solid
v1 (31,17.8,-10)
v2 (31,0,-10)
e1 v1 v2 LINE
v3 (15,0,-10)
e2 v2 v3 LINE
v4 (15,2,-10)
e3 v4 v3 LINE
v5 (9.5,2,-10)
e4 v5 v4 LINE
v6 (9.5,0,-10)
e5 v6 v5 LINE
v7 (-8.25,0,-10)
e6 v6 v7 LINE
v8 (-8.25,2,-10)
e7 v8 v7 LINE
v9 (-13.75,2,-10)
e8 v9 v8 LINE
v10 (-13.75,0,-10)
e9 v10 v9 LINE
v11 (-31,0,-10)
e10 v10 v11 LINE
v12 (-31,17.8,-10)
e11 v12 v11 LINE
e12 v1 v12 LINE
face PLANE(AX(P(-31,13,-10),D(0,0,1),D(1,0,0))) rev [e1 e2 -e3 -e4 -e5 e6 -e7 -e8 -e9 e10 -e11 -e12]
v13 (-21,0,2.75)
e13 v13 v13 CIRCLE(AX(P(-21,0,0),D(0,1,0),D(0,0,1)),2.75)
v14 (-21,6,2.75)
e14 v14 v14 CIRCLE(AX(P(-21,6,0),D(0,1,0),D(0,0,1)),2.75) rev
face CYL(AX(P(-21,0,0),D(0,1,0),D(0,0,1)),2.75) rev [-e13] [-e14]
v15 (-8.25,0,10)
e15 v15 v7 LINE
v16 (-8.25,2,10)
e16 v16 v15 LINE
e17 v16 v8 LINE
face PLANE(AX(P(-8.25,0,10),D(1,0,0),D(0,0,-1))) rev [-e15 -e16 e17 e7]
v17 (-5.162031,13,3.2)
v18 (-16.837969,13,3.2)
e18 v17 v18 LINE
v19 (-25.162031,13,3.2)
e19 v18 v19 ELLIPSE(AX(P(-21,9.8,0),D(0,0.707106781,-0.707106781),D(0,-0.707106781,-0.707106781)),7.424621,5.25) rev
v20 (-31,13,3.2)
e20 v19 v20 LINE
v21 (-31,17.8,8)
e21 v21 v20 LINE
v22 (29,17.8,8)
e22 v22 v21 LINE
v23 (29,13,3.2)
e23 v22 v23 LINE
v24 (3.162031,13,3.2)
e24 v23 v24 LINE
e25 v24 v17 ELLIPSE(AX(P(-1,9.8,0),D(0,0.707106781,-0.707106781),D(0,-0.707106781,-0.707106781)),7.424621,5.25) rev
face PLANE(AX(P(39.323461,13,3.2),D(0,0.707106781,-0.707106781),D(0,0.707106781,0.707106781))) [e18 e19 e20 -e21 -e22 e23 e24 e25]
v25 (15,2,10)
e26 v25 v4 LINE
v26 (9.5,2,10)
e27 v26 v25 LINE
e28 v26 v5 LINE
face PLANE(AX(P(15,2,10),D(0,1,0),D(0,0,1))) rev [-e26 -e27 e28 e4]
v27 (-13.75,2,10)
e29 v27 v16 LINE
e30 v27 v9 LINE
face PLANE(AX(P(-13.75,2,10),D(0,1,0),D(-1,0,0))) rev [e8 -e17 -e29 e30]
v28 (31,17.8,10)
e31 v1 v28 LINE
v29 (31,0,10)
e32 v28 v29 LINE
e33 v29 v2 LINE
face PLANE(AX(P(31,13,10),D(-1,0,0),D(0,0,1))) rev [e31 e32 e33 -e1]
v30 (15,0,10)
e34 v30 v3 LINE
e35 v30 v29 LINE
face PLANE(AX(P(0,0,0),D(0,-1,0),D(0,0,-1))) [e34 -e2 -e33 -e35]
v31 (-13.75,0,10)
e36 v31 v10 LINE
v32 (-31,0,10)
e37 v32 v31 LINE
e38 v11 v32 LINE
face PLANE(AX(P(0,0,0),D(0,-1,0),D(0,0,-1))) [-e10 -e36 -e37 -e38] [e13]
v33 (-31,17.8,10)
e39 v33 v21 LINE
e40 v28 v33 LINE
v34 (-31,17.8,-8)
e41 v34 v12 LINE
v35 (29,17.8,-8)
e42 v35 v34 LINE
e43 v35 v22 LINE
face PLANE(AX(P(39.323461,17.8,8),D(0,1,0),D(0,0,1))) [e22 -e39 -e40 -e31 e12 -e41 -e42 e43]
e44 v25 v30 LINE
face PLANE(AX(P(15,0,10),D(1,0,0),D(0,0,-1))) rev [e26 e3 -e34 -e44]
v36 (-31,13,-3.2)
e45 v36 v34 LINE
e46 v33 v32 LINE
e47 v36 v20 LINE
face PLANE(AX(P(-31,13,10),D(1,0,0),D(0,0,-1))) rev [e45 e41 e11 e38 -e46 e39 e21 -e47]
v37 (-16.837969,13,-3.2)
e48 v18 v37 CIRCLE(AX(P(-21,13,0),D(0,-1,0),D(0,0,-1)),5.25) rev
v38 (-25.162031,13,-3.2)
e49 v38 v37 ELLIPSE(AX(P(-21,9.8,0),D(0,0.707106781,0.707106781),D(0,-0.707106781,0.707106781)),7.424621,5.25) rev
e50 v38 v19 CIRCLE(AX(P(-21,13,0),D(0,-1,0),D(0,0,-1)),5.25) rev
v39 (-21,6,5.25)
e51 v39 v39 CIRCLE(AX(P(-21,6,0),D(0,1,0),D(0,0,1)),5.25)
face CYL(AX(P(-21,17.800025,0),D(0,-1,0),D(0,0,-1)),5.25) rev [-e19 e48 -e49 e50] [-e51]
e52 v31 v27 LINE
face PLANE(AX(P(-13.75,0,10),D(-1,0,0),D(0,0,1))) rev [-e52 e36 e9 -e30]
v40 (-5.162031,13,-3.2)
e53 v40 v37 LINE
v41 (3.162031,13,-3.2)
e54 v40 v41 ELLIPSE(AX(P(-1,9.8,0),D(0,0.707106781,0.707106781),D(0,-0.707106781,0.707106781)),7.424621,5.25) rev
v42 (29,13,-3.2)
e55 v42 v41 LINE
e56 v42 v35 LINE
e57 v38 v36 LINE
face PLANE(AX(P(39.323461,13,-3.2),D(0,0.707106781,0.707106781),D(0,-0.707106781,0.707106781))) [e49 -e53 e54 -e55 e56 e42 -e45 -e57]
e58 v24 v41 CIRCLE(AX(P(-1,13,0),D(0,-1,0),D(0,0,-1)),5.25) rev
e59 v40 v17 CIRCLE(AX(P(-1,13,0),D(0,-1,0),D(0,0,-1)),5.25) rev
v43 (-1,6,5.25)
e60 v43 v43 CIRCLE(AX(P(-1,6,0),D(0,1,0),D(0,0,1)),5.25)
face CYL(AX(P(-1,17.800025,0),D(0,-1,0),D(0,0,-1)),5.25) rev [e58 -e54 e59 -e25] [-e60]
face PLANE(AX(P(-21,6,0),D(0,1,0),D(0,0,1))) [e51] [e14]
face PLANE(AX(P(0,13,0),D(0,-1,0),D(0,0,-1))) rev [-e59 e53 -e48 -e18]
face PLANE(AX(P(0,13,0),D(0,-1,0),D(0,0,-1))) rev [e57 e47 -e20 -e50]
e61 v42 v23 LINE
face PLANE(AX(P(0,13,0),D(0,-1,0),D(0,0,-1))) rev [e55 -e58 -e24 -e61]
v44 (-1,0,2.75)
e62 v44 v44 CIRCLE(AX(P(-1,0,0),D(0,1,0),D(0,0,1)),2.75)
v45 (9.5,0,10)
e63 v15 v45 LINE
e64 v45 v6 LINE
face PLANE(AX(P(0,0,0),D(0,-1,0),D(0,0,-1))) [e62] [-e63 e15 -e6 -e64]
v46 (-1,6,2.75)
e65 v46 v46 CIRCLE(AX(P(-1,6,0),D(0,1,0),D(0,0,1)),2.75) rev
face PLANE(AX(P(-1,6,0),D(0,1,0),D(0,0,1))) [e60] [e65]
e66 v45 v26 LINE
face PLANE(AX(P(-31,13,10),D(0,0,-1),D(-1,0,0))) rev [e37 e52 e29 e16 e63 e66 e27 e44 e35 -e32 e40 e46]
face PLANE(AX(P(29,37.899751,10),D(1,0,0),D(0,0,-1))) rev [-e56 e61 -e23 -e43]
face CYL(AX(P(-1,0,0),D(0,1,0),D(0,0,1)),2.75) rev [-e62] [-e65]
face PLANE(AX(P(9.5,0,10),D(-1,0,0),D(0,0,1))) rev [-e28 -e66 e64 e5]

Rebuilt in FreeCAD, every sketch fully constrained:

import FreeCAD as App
import Part
import Sketcher
from FreeCAD import Vector


def add_polygon(sketch, points):
    """Adds a closed chain of lines whose ends are joined by coincident constraints."""
    first, n = sketch.GeometryCount, len(points)
    for a, b in zip(points, points[1:] + points[:1]):
        sketch.addGeometry(Part.LineSegment(App.Vector(*a, 0), App.Vector(*b, 0)), False)
    for i in range(n):
        sketch.addConstraint(Sketcher.Constraint("Coincident", first + i, 2, first + (i + 1) % n, 1))

doc = App.newDocument("Part")
body = doc.addObject("PartDesign::Body", "Body")

# Sketch on XZ plane
sketch1 = body.newObject("Sketcher::SketchObject", "Sketch")
sketch1.AttachmentSupport = (doc.getObject("XZ_Plane"), [""])
sketch1.MapMode = "FlatFace"
add_polygon(sketch1, [(-31, -10), (-31, 10), (31, 10), (31, -10)])  # lines 0-3
sketch1.addConstraint(Sketcher.Constraint("Vertical", 0))
sketch1.addConstraint(Sketcher.Constraint("Horizontal", 1))
sketch1.addConstraint(Sketcher.Constraint("Vertical", 2))
sketch1.addConstraint(Sketcher.Constraint("Horizontal", 3))
sketch1.addConstraint(Sketcher.Constraint("Symmetric", 0, 2, 2, 2, -1, 1))
sketch1.addConstraint(Sketcher.Constraint("DistanceX", 1, 1, 1, 2, 62.0))
sketch1.addConstraint(Sketcher.Constraint("DistanceY", 0, 1, 0, 2, 20.0))
pad1 = body.newObject("PartDesign::Pad", "Pad")
pad1.Profile = sketch1
pad1.Length = 13
pad1.Reversed = True

# Sketch on YZ plane
sketch2 = body.newObject("Sketcher::SketchObject", "Sketch001")
sketch2.AttachmentSupport = (doc.getObject("YZ_Plane"), [""])
sketch2.MapMode = "FlatFace"
sketch2.AttachmentOffset = App.Placement(Vector(0, 0, -31), App.Rotation())
add_polygon(sketch2, [(17.8, 8), (13, 3.2), (13, 10), (17.8, 10)])  # lines 0-3
add_polygon(sketch2, [(13, -10), (13, -3.2), (17.8, -8), (17.8, -10)])  # lines 4-7
sketch2.addConstraint(Sketcher.Constraint("Vertical", 1))
sketch2.addConstraint(Sketcher.Constraint("Horizontal", 2))
sketch2.addConstraint(Sketcher.Constraint("Vertical", 3))
sketch2.addConstraint(Sketcher.Constraint("Vertical", 4))
sketch2.addConstraint(Sketcher.Constraint("Vertical", 6))
sketch2.addConstraint(Sketcher.Constraint("Horizontal", 7))
sketch2.addConstraint(Sketcher.Constraint("Symmetric", 0, 2, 4, 2, -1))
sketch2.addConstraint(Sketcher.Constraint("Symmetric", 3, 2, 5, 2, -1))
sketch2.addConstraint(Sketcher.Constraint("Perpendicular", 0, 5))
sketch2.addConstraint(Sketcher.Constraint("Equal", 1, 4))
sketch2.addConstraint(Sketcher.Constraint("DistanceY", 3, 2, 3, 1, 2.0))
sketch2.addConstraint(Sketcher.Constraint("DistanceX", 2, 1, 2, 2, 4.8))
sketch2.addConstraint(Sketcher.Constraint("DistanceX", -1, 1, 0, 2, 13.0))
sketch2.addConstraint(Sketcher.Constraint("DistanceY", -1, 1, 1, 2, 10.0))
pad2 = body.newObject("PartDesign::Pad", "Pad001")
pad2.Profile = sketch2
pad2.Length = 62

# Sketch on XZ plane
sketch3 = body.newObject("Sketcher::SketchObject", "Sketch002")
sketch3.AttachmentSupport = (doc.getObject("XZ_Plane"), [""])
sketch3.MapMode = "FlatFace"
sketch3.AttachmentOffset = App.Placement(Vector(0, 0, -13), App.Rotation())
add_polygon(sketch3, [(29, -10), (29, 10), (31, 10), (31, -10)])  # lines 0-3
sketch3.addConstraint(Sketcher.Constraint("Vertical", 0))
sketch3.addConstraint(Sketcher.Constraint("Horizontal", 1))
sketch3.addConstraint(Sketcher.Constraint("Vertical", 2))
sketch3.addConstraint(Sketcher.Constraint("Horizontal", 3))
sketch3.addConstraint(Sketcher.Constraint("DistanceX", 1, 1, 1, 2, 2.0))
sketch3.addConstraint(Sketcher.Constraint("DistanceY", 0, 1, 0, 2, 20.0))
sketch3.addConstraint(Sketcher.Constraint("DistanceX", -1, 1, 0, 2, 29.0))
sketch3.addConstraint(Sketcher.Constraint("DistanceY", -1, 1, 0, 2, 10.0))
pad3 = body.newObject("PartDesign::Pad", "Pad002")
pad3.Profile = sketch3
pad3.Length = 4.8
pad3.Reversed = True

# Sketch on XZ plane
sketch4 = body.newObject("Sketcher::SketchObject", "Sketch003")
sketch4.AttachmentSupport = (doc.getObject("XZ_Plane"), [""])
sketch4.MapMode = "FlatFace"
sketch4.AttachmentOffset = App.Placement(Vector(0, 0, -13), App.Rotation())
sketch4.addGeometry(Part.Circle(Vector(-21, 0, 0), Vector(0, 0, 1), 2.8), False)
sketch4.addGeometry(Part.Circle(Vector(-1, 0, 0), Vector(0, 0, 1), 2.8), False)
sketch4.addConstraint(Sketcher.Constraint("Equal", 0, 1))
sketch4.addConstraint(Sketcher.Constraint("PointOnObject", 0, 3, -1))
sketch4.addConstraint(Sketcher.Constraint("PointOnObject", 1, 3, -1))
sketch4.addConstraint(Sketcher.Constraint("Diameter", 0, 5.5))
sketch4.addConstraint(Sketcher.Constraint("DistanceX", 0, 3, -1, 1, 21.0))
sketch4.addConstraint(Sketcher.Constraint("DistanceX", 1, 3, -1, 1, 1.0))
pocket1 = body.newObject("PartDesign::Pocket", "Pocket")
pocket1.Profile = sketch4
pocket1.Type = "ThroughAll"
pocket1.Reversed = True

# Sketch on XZ plane
sketch5 = body.newObject("Sketcher::SketchObject", "Sketch004")
sketch5.AttachmentSupport = (doc.getObject("XZ_Plane"), [""])
sketch5.MapMode = "FlatFace"
sketch5.AttachmentOffset = App.Placement(Vector(0, 0, -6), App.Rotation())
sketch5.addGeometry(Part.Circle(Vector(-21, 0, 0), Vector(0, 0, 1), 5), False)
sketch5.addGeometry(Part.Circle(Vector(-1, 0, 0), Vector(0, 0, 1), 5), False)
sketch5.addConstraint(Sketcher.Constraint("Equal", 0, 1))
sketch5.addConstraint(Sketcher.Constraint("PointOnObject", 0, 3, -1))
sketch5.addConstraint(Sketcher.Constraint("PointOnObject", 1, 3, -1))
sketch5.addConstraint(Sketcher.Constraint("Diameter", 0, 10.5))
sketch5.addConstraint(Sketcher.Constraint("DistanceX", 0, 3, -1, 1, 21.0))
sketch5.addConstraint(Sketcher.Constraint("DistanceX", 1, 3, -1, 1, 1.0))
pocket2 = body.newObject("PartDesign::Pocket", "Pocket001")
pocket2.Profile = sketch5
pocket2.Type = "ThroughAll"

# Sketch on XY plane
sketch6 = body.newObject("Sketcher::SketchObject", "Sketch005")
sketch6.AttachmentSupport = (doc.getObject("XY_Plane"), [""])
sketch6.MapMode = "FlatFace"
sketch6.AttachmentOffset = App.Placement(Vector(0, 0, -10), App.Rotation())
add_polygon(sketch6, [(15, 2), (15, 0), (9.5, 0), (9.5, 2)])  # lines 0-3
add_polygon(sketch6, [(-8.2, 2), (-8.2, 0), (-13.8, 0), (-13.8, 2)])  # lines 4-7
sketch6.addConstraint(Sketcher.Constraint("Vertical", 0))
sketch6.addConstraint(Sketcher.Constraint("Horizontal", 1))
sketch6.addConstraint(Sketcher.Constraint("Vertical", 2))
sketch6.addConstraint(Sketcher.Constraint("Horizontal", 3))
sketch6.addConstraint(Sketcher.Constraint("Vertical", 4))
sketch6.addConstraint(Sketcher.Constraint("Horizontal", 5))
sketch6.addConstraint(Sketcher.Constraint("Vertical", 6))
sketch6.addConstraint(Sketcher.Constraint("Horizontal", 7))
sketch6.addConstraint(Sketcher.Constraint("PointOnObject", 0, 2, -1))
sketch6.addConstraint(Sketcher.Constraint("PointOnObject", 4, 2, -1))
sketch6.addConstraint(Sketcher.Constraint("Horizontal", 3, 2, 6, 2))
sketch6.addConstraint(Sketcher.Constraint("Equal", 3, 5))
sketch6.addConstraint(Sketcher.Constraint("DistanceY", 0, 2, 0, 1, 2.0))
sketch6.addConstraint(Sketcher.Constraint("DistanceX", 1, 2, 1, 1, 5.5))
sketch6.addConstraint(Sketcher.Constraint("DistanceX", -1, 1, 0, 2, 15.0))
sketch6.addConstraint(Sketcher.Constraint("DistanceX", 4, 2, -1, 1, 8.25))
pocket3 = body.newObject("PartDesign::Pocket", "Pocket002")
pocket3.Profile = sketch6
pocket3.Type = "ThroughAll"
pocket3.Reversed = True

doc.recompute()
